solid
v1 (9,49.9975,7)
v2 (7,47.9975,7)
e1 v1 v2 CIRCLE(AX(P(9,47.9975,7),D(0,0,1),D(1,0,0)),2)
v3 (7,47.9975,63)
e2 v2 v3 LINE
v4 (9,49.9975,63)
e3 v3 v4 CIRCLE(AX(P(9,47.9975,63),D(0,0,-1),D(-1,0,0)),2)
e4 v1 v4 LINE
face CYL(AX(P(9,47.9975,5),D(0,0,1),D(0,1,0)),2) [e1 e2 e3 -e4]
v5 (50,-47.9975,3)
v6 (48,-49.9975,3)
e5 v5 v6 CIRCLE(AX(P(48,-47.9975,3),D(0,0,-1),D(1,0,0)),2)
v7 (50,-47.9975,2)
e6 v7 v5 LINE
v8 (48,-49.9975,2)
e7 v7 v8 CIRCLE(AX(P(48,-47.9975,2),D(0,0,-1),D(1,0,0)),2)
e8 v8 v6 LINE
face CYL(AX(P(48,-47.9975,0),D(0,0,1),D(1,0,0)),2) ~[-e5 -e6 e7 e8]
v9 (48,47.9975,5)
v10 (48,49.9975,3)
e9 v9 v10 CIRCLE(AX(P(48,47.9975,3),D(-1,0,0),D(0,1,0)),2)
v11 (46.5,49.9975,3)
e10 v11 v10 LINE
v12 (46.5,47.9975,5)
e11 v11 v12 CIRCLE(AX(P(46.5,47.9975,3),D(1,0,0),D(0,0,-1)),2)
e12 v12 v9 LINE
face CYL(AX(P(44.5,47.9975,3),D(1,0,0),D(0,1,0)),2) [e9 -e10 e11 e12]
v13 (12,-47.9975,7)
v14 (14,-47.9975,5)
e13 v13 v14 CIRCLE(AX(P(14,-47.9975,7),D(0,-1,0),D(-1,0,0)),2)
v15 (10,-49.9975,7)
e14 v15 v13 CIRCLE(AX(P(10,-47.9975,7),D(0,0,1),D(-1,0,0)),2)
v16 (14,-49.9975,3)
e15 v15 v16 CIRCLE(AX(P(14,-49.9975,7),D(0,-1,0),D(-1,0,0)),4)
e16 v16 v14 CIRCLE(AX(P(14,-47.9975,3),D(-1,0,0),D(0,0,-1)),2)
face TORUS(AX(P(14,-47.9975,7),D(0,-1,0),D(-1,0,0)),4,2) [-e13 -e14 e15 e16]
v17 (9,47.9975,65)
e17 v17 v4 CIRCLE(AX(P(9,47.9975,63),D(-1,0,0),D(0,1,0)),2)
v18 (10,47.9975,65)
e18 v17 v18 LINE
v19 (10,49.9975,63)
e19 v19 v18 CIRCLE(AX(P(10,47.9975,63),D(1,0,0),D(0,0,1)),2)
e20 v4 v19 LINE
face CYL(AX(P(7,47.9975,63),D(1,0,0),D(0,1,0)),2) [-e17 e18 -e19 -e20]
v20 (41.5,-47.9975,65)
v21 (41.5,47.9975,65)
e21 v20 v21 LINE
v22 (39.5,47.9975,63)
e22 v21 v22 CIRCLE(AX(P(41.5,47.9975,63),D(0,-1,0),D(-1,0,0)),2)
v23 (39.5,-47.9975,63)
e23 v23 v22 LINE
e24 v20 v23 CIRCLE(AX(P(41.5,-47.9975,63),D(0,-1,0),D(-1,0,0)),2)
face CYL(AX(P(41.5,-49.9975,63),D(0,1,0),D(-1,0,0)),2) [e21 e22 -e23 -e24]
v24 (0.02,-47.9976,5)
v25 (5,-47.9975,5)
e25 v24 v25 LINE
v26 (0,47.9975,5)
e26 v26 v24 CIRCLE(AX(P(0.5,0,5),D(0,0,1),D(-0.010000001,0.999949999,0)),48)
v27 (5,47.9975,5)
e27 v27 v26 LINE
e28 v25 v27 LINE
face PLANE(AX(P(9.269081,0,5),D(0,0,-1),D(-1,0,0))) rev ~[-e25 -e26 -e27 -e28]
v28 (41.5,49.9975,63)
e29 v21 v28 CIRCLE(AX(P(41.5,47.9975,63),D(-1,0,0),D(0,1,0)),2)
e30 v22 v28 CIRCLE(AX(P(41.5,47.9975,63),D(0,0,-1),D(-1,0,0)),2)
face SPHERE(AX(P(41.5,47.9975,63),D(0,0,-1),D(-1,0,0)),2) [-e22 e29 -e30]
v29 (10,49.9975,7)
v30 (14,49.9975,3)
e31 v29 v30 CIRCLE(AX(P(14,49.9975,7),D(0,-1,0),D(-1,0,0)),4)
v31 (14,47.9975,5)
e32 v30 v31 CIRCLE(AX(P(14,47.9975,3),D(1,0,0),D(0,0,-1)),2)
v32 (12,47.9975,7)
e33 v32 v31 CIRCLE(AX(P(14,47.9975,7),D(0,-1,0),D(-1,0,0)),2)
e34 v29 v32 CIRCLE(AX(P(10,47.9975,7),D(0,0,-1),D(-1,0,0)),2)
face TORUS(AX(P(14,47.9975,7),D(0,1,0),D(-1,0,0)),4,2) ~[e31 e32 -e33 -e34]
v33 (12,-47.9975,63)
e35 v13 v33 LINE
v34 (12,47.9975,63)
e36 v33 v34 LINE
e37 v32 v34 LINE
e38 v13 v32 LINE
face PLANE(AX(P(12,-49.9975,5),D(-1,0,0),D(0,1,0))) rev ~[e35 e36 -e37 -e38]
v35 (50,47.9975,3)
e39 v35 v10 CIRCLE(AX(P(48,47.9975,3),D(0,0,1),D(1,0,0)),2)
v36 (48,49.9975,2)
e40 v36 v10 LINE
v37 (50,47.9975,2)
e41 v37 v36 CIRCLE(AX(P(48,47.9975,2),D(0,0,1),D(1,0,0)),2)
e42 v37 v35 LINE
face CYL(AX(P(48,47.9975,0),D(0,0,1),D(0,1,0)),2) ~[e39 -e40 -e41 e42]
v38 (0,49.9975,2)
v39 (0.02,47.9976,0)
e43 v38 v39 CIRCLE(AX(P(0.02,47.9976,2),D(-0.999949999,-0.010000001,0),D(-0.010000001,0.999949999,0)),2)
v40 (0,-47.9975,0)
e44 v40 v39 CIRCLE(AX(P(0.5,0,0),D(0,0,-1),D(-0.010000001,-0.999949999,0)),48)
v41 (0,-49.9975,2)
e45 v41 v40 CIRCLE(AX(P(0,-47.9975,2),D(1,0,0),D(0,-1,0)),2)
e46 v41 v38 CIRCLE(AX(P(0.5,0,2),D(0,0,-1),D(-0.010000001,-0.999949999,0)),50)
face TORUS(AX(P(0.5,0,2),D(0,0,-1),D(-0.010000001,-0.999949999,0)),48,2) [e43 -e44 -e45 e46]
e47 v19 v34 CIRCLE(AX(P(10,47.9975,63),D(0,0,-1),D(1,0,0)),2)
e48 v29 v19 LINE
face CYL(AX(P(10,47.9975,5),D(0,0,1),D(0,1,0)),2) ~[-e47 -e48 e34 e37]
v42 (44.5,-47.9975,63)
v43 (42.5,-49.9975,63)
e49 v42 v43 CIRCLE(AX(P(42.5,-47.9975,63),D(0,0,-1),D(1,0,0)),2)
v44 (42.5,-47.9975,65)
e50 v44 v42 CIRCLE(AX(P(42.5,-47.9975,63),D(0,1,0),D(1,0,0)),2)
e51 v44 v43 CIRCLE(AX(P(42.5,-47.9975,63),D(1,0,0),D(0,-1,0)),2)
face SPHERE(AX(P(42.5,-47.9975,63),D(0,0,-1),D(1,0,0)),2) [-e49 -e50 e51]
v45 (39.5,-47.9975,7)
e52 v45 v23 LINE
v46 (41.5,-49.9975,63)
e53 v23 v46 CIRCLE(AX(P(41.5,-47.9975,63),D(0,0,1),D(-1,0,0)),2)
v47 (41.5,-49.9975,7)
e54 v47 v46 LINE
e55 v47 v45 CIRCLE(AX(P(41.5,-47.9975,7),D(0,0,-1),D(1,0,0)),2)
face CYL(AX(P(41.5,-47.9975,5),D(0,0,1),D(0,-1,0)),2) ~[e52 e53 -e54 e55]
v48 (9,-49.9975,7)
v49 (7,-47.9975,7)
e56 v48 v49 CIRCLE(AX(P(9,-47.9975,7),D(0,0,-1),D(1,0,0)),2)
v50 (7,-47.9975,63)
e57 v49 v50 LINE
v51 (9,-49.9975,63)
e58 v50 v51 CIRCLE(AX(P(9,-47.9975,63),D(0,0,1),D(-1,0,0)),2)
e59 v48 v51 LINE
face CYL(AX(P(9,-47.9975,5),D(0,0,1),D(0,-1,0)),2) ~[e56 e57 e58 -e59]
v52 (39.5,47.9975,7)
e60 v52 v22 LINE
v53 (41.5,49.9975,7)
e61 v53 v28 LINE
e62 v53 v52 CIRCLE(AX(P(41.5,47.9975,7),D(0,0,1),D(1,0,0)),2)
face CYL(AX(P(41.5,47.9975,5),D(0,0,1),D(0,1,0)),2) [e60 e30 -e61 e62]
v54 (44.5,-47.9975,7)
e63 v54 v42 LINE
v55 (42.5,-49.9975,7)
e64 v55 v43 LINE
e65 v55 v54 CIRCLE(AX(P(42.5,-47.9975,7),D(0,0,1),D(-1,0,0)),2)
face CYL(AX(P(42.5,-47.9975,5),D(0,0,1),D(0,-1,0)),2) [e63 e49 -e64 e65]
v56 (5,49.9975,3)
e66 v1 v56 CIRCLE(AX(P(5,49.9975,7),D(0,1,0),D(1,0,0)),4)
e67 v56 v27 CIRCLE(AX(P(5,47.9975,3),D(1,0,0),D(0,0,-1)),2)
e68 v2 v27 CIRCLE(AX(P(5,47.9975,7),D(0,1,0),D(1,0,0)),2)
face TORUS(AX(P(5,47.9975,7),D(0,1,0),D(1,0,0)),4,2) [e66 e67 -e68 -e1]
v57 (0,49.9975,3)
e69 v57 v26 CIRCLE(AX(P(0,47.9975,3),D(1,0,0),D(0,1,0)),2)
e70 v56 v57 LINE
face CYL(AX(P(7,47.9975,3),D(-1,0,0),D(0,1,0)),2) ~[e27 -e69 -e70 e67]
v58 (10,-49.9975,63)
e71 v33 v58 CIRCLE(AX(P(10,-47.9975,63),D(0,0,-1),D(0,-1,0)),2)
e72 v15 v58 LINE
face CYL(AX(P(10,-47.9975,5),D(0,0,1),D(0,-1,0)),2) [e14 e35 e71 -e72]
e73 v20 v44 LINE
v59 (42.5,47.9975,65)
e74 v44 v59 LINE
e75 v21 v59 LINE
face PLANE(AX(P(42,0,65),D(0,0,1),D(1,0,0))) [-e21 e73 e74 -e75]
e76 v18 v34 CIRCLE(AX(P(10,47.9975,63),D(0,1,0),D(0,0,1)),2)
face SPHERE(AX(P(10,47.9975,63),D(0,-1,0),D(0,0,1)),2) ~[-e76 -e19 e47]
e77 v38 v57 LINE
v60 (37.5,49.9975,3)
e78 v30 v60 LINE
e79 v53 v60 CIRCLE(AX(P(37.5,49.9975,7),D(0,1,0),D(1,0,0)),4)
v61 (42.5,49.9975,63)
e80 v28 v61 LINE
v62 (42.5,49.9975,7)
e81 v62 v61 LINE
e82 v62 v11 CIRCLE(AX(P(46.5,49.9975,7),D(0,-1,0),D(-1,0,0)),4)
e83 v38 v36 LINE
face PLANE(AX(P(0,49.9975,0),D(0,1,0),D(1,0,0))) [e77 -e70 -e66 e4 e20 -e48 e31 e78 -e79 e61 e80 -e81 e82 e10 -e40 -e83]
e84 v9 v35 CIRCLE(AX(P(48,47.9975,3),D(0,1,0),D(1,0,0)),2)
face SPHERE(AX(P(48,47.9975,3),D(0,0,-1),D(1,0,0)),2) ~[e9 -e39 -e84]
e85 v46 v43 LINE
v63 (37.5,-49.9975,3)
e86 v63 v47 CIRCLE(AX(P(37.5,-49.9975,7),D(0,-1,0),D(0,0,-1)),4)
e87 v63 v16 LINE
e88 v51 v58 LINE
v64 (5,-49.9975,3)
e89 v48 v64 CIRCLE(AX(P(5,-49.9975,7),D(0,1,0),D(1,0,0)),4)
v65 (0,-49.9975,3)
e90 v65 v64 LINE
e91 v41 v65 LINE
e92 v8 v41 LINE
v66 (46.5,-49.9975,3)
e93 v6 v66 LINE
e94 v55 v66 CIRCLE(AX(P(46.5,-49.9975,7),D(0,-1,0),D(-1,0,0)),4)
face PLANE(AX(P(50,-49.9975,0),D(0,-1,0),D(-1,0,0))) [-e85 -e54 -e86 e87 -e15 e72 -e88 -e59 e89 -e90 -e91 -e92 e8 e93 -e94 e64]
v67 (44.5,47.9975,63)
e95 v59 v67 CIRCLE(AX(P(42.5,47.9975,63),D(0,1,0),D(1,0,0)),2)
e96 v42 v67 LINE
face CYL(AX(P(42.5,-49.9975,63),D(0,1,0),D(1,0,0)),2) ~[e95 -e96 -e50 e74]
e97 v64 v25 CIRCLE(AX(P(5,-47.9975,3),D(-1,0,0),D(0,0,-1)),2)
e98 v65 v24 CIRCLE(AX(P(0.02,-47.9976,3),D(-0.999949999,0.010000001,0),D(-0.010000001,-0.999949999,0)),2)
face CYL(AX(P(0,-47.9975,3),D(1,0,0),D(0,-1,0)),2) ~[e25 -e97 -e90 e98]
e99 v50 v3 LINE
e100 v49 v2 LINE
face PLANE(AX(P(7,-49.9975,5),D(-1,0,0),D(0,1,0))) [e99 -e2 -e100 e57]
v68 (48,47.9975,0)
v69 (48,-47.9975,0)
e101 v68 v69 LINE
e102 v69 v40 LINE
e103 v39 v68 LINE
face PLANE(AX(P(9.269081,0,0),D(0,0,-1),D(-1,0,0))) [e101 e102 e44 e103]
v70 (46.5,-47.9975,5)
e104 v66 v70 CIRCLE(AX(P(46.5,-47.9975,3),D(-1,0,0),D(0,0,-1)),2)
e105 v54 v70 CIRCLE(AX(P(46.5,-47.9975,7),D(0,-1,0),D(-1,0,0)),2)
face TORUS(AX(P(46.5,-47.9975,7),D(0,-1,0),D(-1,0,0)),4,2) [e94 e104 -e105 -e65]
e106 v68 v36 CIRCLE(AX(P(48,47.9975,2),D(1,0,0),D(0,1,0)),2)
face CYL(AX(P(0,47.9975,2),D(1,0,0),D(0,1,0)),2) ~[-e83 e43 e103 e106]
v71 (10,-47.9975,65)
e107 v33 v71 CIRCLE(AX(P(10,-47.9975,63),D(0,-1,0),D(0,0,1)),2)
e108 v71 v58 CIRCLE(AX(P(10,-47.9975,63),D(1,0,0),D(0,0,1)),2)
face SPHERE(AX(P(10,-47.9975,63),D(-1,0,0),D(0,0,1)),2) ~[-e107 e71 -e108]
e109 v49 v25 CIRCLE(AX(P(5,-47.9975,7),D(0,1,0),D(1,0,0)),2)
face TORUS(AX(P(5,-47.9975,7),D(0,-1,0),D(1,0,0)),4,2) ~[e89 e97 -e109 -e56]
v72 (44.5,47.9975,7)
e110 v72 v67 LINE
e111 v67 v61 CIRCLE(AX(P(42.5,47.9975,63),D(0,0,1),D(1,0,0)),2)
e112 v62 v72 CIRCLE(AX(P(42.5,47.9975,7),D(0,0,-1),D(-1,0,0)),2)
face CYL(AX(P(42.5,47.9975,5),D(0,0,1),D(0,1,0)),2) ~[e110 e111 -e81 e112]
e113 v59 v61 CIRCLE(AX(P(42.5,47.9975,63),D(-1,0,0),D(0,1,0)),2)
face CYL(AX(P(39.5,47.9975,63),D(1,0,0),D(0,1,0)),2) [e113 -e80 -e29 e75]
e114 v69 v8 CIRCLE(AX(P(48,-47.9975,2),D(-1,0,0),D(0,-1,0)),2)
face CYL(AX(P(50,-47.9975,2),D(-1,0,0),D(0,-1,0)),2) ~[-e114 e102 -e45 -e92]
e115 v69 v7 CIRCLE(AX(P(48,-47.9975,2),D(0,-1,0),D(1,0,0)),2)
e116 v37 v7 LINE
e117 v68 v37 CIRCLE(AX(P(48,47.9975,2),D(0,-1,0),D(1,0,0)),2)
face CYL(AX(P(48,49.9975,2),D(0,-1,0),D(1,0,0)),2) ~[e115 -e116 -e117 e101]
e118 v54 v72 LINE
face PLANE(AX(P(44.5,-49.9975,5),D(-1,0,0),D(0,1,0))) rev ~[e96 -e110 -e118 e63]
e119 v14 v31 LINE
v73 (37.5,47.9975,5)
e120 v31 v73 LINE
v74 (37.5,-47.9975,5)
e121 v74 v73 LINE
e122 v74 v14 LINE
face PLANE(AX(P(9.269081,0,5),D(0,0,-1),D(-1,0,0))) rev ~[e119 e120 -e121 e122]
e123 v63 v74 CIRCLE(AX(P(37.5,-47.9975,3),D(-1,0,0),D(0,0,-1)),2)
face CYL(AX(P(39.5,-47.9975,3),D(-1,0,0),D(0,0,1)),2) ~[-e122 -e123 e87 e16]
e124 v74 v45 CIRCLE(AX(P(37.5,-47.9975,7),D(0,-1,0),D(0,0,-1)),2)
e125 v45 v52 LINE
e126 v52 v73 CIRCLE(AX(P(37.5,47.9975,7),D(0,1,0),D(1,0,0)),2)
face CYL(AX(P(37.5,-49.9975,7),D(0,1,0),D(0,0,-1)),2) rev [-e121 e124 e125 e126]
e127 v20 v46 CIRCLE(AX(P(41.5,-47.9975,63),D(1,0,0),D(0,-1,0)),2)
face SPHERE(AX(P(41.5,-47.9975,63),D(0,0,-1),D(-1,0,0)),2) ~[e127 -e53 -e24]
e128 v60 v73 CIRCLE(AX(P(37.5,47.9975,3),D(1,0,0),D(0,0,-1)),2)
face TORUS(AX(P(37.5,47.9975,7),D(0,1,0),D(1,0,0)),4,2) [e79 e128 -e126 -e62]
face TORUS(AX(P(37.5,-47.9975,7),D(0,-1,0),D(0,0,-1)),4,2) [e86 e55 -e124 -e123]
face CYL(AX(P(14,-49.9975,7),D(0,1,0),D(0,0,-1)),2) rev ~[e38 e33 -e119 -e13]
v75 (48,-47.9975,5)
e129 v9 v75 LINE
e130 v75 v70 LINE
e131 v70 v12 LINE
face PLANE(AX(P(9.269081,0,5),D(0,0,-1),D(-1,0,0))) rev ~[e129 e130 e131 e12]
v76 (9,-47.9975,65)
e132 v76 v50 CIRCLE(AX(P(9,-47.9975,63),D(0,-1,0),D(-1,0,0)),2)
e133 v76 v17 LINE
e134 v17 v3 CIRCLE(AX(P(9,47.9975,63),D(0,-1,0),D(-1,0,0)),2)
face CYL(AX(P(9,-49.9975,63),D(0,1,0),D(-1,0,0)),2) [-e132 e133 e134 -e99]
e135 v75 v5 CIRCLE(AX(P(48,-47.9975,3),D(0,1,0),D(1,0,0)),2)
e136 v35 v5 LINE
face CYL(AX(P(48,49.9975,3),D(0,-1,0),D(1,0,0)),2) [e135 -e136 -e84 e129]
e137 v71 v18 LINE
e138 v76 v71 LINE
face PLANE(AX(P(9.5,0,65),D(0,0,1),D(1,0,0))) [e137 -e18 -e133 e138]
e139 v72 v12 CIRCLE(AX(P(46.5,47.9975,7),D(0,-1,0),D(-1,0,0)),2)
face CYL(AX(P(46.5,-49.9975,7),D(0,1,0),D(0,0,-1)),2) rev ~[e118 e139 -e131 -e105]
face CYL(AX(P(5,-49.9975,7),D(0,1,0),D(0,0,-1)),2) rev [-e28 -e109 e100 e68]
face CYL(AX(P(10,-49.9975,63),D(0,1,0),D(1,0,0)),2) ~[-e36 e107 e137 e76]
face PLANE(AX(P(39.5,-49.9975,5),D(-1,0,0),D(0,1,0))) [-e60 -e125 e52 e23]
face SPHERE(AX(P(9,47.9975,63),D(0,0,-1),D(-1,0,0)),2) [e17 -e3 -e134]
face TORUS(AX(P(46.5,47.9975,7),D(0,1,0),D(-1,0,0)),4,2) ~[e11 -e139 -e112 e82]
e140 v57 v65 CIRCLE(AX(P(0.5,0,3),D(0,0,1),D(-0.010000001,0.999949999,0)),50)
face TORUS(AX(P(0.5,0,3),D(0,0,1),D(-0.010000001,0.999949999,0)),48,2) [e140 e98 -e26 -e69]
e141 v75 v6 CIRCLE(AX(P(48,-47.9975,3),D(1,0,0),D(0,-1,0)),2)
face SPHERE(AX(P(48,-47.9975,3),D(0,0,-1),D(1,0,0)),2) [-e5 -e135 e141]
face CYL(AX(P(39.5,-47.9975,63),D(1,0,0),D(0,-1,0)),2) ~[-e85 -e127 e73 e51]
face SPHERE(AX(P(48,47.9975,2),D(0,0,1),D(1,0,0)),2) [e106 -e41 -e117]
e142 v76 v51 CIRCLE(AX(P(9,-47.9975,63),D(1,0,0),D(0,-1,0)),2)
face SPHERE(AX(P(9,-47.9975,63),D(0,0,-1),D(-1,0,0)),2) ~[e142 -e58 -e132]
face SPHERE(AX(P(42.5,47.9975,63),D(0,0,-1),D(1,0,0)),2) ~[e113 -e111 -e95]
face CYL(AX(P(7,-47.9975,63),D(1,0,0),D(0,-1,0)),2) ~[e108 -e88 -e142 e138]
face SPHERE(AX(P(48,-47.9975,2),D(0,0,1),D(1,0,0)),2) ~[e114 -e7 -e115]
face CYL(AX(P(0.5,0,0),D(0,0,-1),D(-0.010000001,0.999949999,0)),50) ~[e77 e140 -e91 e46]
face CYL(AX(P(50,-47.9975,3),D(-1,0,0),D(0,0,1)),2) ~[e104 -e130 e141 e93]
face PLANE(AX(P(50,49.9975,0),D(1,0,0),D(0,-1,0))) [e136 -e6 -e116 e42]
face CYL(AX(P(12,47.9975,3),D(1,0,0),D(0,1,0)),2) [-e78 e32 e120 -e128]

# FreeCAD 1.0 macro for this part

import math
import FreeCAD as App
import Part
import Sketcher

V = App.Vector

doc = App.newDocument("Part")
params = doc.addObject("Spreadsheet::Sheet", "Params")
for row, (alias, value) in enumerate([
    ("sketch1_radius", "50 mm"),
    ("sketch1_width", "50 mm"),
    ("pad1_length", "5 mm"),
    ("sketch2_width", "5 mm"),
    ("pad2_length", "60 mm"),
    ("fillet_radius", "2 mm"),
], start=1):
    params.set(f"A{row}", alias)
    params.set(f"B{row}", "=" + value)
    params.setAlias(f"B{row}", alias)

body = doc.addObject("PartDesign::Body", "Body")

# Sketch on XY plane
sketch1 = body.newObject("Sketcher::SketchObject", "Sketch")
sketch1.AttachmentSupport = (doc.getObject("XY_Plane"), [""])
sketch1.MapMode = "FlatFace"
sketch1.addGeometry([
    Part.LineSegment(V(50, 49.9975, 0), V(0, 49.9975, 0)),
    Part.ArcOfCircle(Part.Circle(V(0.5, 0, 0), V(0, 0, 1), 50), math.radians(90.572967), math.radians(269.427033)),
    Part.LineSegment(V(0, -49.9975, 0), V(50, -49.9975, 0)),
    Part.LineSegment(V(50, -49.9975, 0), V(50, 49.9975, 0)),
], False)
sketch1.addConstraint([
    Sketcher.Constraint("Coincident", 0, 2, 1, 1),
    Sketcher.Constraint("Coincident", 1, 2, 2, 1),
    Sketcher.Constraint("Coincident", 2, 2, 3, 1),
    Sketcher.Constraint("Coincident", 3, 2, 0, 1),
    Sketcher.Constraint("Horizontal", 0),
    Sketcher.Constraint("Horizontal", 2),
    Sketcher.Constraint("Vertical", 3),
    Sketcher.Constraint("Symmetric", 0, 2, 1, 2, -1, 1),
    Sketcher.Constraint("PointOnObject", 1, 3, -1),
    Sketcher.Constraint("Radius", 1, 50.0),
    Sketcher.Constraint("DistanceX", 0, 2, 0, 1, 50.0),
    Sketcher.Constraint("DistanceX", -1, 1, 1, 3, 0.5),
])
sketch1.setExpression("Constraints[9]", "Params.sketch1_radius")
sketch1.setExpression("Constraints[10]", "Params.sketch1_width")
pad1 = body.newObject("PartDesign::Pad", "Pad")
pad1.Profile = sketch1
pad1.setExpression("Length", "Params.pad1_length")

# Sketch on XY plane
sketch2 = body.newObject("Sketcher::SketchObject", "Sketch001")
sketch2.AttachmentSupport = (doc.getObject("XY_Plane"), [""])
sketch2.MapMode = "FlatFace"
sketch2.AttachmentOffset = App.Placement(V(0, 0, 5), App.Rotation())
sketch2.addGeometry([
    Part.LineSegment(V(7, 49.9975, 0), V(7, -49.9975, 0)),  # 0
    Part.LineSegment(V(7, -49.9975, 0), V(12, -49.9975, 0)),  # 1
    Part.LineSegment(V(12, -49.9975, 0), V(12, 49.9975, 0)),  # 2
    Part.LineSegment(V(12, 49.9975, 0), V(7, 49.9975, 0)),  # 3
    Part.LineSegment(V(39.5, 49.9975, 0), V(39.5, -49.9975, 0)),  # 4
    Part.LineSegment(V(39.5, -49.9975, 0), V(44.5, -49.9975, 0)),  # 5
    Part.LineSegment(V(44.5, -49.9975, 0), V(44.5, 49.9975, 0)),  # 6
    Part.LineSegment(V(44.5, 49.9975, 0), V(39.5, 49.9975, 0)),  # 7
], False)
sketch2.addConstraint([
    Sketcher.Constraint("Coincident", 0, 2, 1, 1),
    Sketcher.Constraint("Coincident", 1, 2, 2, 1),
    Sketcher.Constraint("Coincident", 2, 2, 3, 1),
    Sketcher.Constraint("Coincident", 3, 2, 0, 1),
    Sketcher.Constraint("Coincident", 4, 2, 5, 1),
    Sketcher.Constraint("Coincident", 5, 2, 6, 1),
    Sketcher.Constraint("Coincident", 6, 2, 7, 1),
    Sketcher.Constraint("Coincident", 7, 2, 4, 1),
    Sketcher.Constraint("Vertical", 0),
    Sketcher.Constraint("Horizontal", 1),
    Sketcher.Constraint("Vertical", 2),
    Sketcher.Constraint("Horizontal", 3),
    Sketcher.Constraint("Vertical", 4),
    Sketcher.Constraint("Horizontal", 5),
    Sketcher.Constraint("Vertical", 6),
    Sketcher.Constraint("Horizontal", 7),
    Sketcher.Constraint("Horizontal", 1, 2, 4, 2),
    Sketcher.Constraint("Horizontal", 3, 2, 6, 2),
    Sketcher.Constraint("Equal", 3, 5),
    Sketcher.Constraint("DistanceX", 1, 1, 1, 2, 5.0),
    Sketcher.Constraint("DistanceX", -1, 1, 0, 2, 7.0),
    Sketcher.Constraint("DistanceX", -1, 1, 4, 2, 39.5),
    Sketcher.Constraint("DistanceY", 0, 2, 0, 1, 99.995),
    Sketcher.Constraint("DistanceY", 0, 2, -1, 1, 49.9975),
])
sketch2.setExpression("Constraints[19]", "Params.sketch2_width")
pad2 = body.newObject("PartDesign::Pad", "Pad001")
pad2.Profile = sketch2
pad2.setExpression("Length", "Params.pad2_length")
doc.recompute()

fillet = body.newObject("PartDesign::Fillet", "Fillet")
fillet.Base = (pad2, ["Edge1"])
fillet.UseAllEdges = True
fillet.setExpression("Radius", "Params.fillet_radius")

doc.recompute()
